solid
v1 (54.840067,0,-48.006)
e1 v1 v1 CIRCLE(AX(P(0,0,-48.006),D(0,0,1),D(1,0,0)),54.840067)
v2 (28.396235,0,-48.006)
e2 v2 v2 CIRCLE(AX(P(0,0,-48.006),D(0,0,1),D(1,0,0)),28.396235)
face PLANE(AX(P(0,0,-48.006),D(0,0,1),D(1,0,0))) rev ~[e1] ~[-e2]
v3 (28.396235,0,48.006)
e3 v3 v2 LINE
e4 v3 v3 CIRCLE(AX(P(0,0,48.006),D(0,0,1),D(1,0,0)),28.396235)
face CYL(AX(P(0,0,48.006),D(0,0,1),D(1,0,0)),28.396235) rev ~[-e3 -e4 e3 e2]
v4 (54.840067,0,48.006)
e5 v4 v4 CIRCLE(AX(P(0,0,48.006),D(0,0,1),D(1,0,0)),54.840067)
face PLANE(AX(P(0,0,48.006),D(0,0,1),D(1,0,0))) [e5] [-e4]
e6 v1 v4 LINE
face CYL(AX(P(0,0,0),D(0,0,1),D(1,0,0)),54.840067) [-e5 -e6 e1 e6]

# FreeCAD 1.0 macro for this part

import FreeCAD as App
import Part
import Sketcher

V = App.Vector
Q = App.Units.Quantity

doc = App.newDocument("Part")
body = doc.addObject("PartDesign::Body", "Body")

# Sketch on XY plane
sketch1 = doc.addObject("Sketcher::SketchObject", "Sketch")
body.addObject(sketch1)
sketch1.AttachmentSupport = (doc.XY_Plane, [""])
sketch1.MapMode = "FlatFace"
sketch1.addGeometry(Part.Circle(V(0, 0, 0), V(0, 0, 1), 54.840067), False)
sketch1.addConstraint(Sketcher.Constraint("Coincident", 0, 3, -1, 1))
sketch1.addConstraint(Sketcher.Constraint("Diameter", 0, 109.680134))
pad1 = doc.addObject("PartDesign::Pad", "Pad")
body.addObject(pad1)
pad1.Profile = sketch1
pad1.Length = Q("3.78 in")
pad1.Midplane = True

# Sketch on XY plane
sketch2 = doc.addObject("Sketcher::SketchObject", "Sketch001")
body.addObject(sketch2)
sketch2.AttachmentSupport = (doc.XY_Plane, [""])
sketch2.MapMode = "FlatFace"
sketch2.AttachmentOffset = App.Placement(V(0, 0, 1.89 * 25.4), App.Rotation())
sketch2.addGeometry(Part.Circle(V(0, 0, 0), V(0, 0, 1), 26.964894), False)
sketch2.addConstraint(Sketcher.Constraint("Coincident", 0, 3, -1, 1))
sketch2.addConstraint(Sketcher.Constraint("Diameter", 0, 53.929788))
pad2 = doc.addObject("PartDesign::Pad", "Pad001")
body.addObject(pad2)
pad2.Profile = sketch2
pad2.Length = Q("2.99 in")
pad2.Reversed = True

# Sketch on XY plane
sketch3 = doc.addObject("Sketcher::SketchObject", "Sketch002")
body.addObject(sketch3)
sketch3.AttachmentSupport = (doc.XY_Plane, [""])
sketch3.MapMode = "FlatFace"
sketch3.AttachmentOffset = App.Placement(V(0, 0, 1.89 * 25.4), App.Rotation())
sketch3.addGeometry(Part.Circle(V(0, 0, 0), V(0, 0, 1), 28.396235), False)
sketch3.addConstraint(Sketcher.Constraint("Coincident", 0, 3, -1, 1))
sketch3.addConstraint(Sketcher.Constraint("Diameter", 0, 56.79247))
pocket1 = doc.addObject("PartDesign::Pocket", "Pocket")
body.addObject(pocket1)
pocket1.Profile = sketch3
pocket1.Length = Q("3.82 in")

doc.recompute()
